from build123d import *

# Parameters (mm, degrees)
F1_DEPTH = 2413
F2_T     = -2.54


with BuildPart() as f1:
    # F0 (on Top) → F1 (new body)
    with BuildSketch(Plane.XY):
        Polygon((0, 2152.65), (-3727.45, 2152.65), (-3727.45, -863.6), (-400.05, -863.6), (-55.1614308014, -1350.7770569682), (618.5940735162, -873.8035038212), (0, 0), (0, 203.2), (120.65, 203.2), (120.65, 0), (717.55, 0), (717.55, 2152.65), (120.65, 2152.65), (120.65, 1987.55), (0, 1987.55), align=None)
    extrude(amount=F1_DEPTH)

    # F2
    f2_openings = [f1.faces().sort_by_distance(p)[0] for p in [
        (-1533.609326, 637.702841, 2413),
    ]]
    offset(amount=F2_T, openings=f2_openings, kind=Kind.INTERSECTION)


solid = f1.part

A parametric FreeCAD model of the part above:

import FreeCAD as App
import Part
import Sketcher
Q = App.Units.Quantity


def faces_at(feature, points):
    """Names of the faces that lie closest to the given points."""
    faces = feature.Shape.Faces
    near = lambda p: min(range(len(faces)), key=lambda i: faces[i].distToShape(Part.Vertex(*p))[0])
    return sorted({f"Face{near(p) + 1}" for p in points})

doc = App.newDocument("Part")
params = doc.addObject("Spreadsheet::Sheet", "Params")
for row, (alias, value) in enumerate([
    ("sketch1_width", "131 in"),
    ("sketch1_height", "8 in"),
    ("sketch1_width2", "23.5 in"),
    ("sketch1_height2", "6.5 in"),
    ("sketch1_length", "23.5 in"),
    ("pad1_length", "95 in"),
    ("thickness_wall", "0.1 in"),
], start=1):
    params.set(f"A{row}", alias)
    params.set(f"B{row}", "=" + value)
    params.setAlias(f"B{row}", alias)

body = doc.addObject("PartDesign::Body", "Body")

sketch1 = doc.addObject("Sketcher::SketchObject", "Sketch")
body.addObject(sketch1)
sketch1.AttachmentSupport = (doc.XY_Plane, [""])
sketch1.MapMode = "FlatFace"
sketch1.addGeometry([
    Part.LineSegment(App.Vector(0, 2153, 0), App.Vector(-3727, 2153, 0)),
    Part.LineSegment(App.Vector(-3727, 2153, 0), App.Vector(-3727, -864, 0)),
    Part.LineSegment(App.Vector(-3727, -864, 0), App.Vector(-400, -864, 0)),
    Part.LineSegment(App.Vector(-400, -864, 0), App.Vector(-55, -1351, 0)),
    Part.LineSegment(App.Vector(-55, -1351, 0), App.Vector(619, -874, 0)),
    Part.LineSegment(App.Vector(619, -874, 0), App.Vector(0, 0, 0)),
    Part.LineSegment(App.Vector(0, 0, 0), App.Vector(0, 203, 0)),
    Part.LineSegment(App.Vector(0, 203, 0), App.Vector(121, 203, 0)),
    Part.LineSegment(App.Vector(121, 203, 0), App.Vector(121, 0, 0)),
    Part.LineSegment(App.Vector(121, 0, 0), App.Vector(718, 0, 0)),
    Part.LineSegment(App.Vector(718, 0, 0), App.Vector(718, 2153, 0)),
    Part.LineSegment(App.Vector(718, 2153, 0), App.Vector(121, 2153, 0)),
    Part.LineSegment(App.Vector(121, 2153, 0), App.Vector(121, 1988, 0)),
    Part.LineSegment(App.Vector(121, 1988, 0), App.Vector(0, 1988, 0)),
    Part.LineSegment(App.Vector(0, 1988, 0), App.Vector(0, 2153, 0)),
], False)
sketch1.addConstraint([
    Sketcher.Constraint("Coincident", 0, 2, 1, 1),
    Sketcher.Constraint("Coincident", 1, 2, 2, 1),
    Sketcher.Constraint("Coincident", 2, 2, 3, 1),
    Sketcher.Constraint("Coincident", 3, 2, 4, 1),
    Sketcher.Constraint("Coincident", 4, 2, 5, 1),
    Sketcher.Constraint("Coincident", 5, 2, 6, 1),
    Sketcher.Constraint("Coincident", 6, 2, 7, 1),
    Sketcher.Constraint("Coincident", 7, 2, 8, 1),
    Sketcher.Constraint("Coincident", 8, 2, 9, 1),
    Sketcher.Constraint("Coincident", 9, 2, 10, 1),
    Sketcher.Constraint("Coincident", 10, 2, 11, 1),
    Sketcher.Constraint("Coincident", 11, 2, 12, 1),
    Sketcher.Constraint("Coincident", 12, 2, 13, 1),
    Sketcher.Constraint("Coincident", 13, 2, 14, 1),
    Sketcher.Constraint("Coincident", 14, 2, 0, 1),
    Sketcher.Constraint("Horizontal", 0),
    Sketcher.Constraint("Vertical", 1),
    Sketcher.Constraint("Horizontal", 2),
    Sketcher.Constraint("Vertical", 6),
    Sketcher.Constraint("Horizontal", 7),
    Sketcher.Constraint("Vertical", 8),
    Sketcher.Constraint("Horizontal", 9),
    Sketcher.Constraint("Vertical", 10),
    Sketcher.Constraint("Horizontal", 11),
    Sketcher.Constraint("Vertical", 12),
    Sketcher.Constraint("Horizontal", 13),
    Sketcher.Constraint("Vertical", 14),
    Sketcher.Constraint("Coincident", 5, 2, -1, 1),
    Sketcher.Constraint("PointOnObject", 8, 2, -1),
    Sketcher.Constraint("PointOnObject", 13, 2, -2),
    Sketcher.Constraint("Perpendicular", 3, 4),
    Sketcher.Constraint("Perpendicular", 4, 5),
    Sketcher.Constraint("Horizontal", 0, 2, 10, 2),
    Sketcher.Constraint("Vertical", 8, 2, 11, 2),
    Sketcher.Constraint("DistanceX", 2, 1, 2, 2, Q("131 in")),
    Sketcher.Constraint("DistanceY", 6, 1, 6, 2, Q("8 in")),
    Sketcher.Constraint("DistanceX", 9, 1, 9, 2, Q("23.5 in")),
    Sketcher.Constraint("DistanceY", 12, 2, 12, 1, Q("6.5 in")),
    Sketcher.Constraint("DistanceY", 1, 2, -1, 1, Q("34 in")),
    Sketcher.Constraint("Distance", 3, Q("23.5 in")),
    Sketcher.Constraint("Distance", 4, Q("32.5 in")),
    Sketcher.Constraint("DistanceX", 0, 2, 0, 1, Q("146.75 in")),
    Sketcher.Constraint("DistanceX", 7, 1, 7, 2, Q("4.75 in")),
    Sketcher.Constraint("DistanceY", 1, 2, 1, 1, Q("118.75 in")),
])
sketch1.setExpression("Constraints[34]", "Params.sketch1_width")
sketch1.setExpression("Constraints[35]", "Params.sketch1_height")
sketch1.setExpression("Constraints[36]", "Params.sketch1_width2")
sketch1.setExpression("Constraints[37]", "Params.sketch1_height2")
sketch1.setExpression("Constraints[39]", "Params.sketch1_length")
pad1 = doc.addObject("PartDesign::Pad", "Pad")
body.addObject(pad1)
pad1.Profile = sketch1
pad1.setExpression("Length", "Params.pad1_length")
doc.recompute()

thickness = doc.addObject("PartDesign::Thickness", "Thickness")
body.addObject(thickness)
thickness.Base = (pad1, faces_at(pad1, [(-1504.95, 400.936, 2413)]))
thickness.setExpression("Value", "Params.thickness_wall")
thickness.Reversed = True
thickness.Join = "Intersection"

doc.recompute()
